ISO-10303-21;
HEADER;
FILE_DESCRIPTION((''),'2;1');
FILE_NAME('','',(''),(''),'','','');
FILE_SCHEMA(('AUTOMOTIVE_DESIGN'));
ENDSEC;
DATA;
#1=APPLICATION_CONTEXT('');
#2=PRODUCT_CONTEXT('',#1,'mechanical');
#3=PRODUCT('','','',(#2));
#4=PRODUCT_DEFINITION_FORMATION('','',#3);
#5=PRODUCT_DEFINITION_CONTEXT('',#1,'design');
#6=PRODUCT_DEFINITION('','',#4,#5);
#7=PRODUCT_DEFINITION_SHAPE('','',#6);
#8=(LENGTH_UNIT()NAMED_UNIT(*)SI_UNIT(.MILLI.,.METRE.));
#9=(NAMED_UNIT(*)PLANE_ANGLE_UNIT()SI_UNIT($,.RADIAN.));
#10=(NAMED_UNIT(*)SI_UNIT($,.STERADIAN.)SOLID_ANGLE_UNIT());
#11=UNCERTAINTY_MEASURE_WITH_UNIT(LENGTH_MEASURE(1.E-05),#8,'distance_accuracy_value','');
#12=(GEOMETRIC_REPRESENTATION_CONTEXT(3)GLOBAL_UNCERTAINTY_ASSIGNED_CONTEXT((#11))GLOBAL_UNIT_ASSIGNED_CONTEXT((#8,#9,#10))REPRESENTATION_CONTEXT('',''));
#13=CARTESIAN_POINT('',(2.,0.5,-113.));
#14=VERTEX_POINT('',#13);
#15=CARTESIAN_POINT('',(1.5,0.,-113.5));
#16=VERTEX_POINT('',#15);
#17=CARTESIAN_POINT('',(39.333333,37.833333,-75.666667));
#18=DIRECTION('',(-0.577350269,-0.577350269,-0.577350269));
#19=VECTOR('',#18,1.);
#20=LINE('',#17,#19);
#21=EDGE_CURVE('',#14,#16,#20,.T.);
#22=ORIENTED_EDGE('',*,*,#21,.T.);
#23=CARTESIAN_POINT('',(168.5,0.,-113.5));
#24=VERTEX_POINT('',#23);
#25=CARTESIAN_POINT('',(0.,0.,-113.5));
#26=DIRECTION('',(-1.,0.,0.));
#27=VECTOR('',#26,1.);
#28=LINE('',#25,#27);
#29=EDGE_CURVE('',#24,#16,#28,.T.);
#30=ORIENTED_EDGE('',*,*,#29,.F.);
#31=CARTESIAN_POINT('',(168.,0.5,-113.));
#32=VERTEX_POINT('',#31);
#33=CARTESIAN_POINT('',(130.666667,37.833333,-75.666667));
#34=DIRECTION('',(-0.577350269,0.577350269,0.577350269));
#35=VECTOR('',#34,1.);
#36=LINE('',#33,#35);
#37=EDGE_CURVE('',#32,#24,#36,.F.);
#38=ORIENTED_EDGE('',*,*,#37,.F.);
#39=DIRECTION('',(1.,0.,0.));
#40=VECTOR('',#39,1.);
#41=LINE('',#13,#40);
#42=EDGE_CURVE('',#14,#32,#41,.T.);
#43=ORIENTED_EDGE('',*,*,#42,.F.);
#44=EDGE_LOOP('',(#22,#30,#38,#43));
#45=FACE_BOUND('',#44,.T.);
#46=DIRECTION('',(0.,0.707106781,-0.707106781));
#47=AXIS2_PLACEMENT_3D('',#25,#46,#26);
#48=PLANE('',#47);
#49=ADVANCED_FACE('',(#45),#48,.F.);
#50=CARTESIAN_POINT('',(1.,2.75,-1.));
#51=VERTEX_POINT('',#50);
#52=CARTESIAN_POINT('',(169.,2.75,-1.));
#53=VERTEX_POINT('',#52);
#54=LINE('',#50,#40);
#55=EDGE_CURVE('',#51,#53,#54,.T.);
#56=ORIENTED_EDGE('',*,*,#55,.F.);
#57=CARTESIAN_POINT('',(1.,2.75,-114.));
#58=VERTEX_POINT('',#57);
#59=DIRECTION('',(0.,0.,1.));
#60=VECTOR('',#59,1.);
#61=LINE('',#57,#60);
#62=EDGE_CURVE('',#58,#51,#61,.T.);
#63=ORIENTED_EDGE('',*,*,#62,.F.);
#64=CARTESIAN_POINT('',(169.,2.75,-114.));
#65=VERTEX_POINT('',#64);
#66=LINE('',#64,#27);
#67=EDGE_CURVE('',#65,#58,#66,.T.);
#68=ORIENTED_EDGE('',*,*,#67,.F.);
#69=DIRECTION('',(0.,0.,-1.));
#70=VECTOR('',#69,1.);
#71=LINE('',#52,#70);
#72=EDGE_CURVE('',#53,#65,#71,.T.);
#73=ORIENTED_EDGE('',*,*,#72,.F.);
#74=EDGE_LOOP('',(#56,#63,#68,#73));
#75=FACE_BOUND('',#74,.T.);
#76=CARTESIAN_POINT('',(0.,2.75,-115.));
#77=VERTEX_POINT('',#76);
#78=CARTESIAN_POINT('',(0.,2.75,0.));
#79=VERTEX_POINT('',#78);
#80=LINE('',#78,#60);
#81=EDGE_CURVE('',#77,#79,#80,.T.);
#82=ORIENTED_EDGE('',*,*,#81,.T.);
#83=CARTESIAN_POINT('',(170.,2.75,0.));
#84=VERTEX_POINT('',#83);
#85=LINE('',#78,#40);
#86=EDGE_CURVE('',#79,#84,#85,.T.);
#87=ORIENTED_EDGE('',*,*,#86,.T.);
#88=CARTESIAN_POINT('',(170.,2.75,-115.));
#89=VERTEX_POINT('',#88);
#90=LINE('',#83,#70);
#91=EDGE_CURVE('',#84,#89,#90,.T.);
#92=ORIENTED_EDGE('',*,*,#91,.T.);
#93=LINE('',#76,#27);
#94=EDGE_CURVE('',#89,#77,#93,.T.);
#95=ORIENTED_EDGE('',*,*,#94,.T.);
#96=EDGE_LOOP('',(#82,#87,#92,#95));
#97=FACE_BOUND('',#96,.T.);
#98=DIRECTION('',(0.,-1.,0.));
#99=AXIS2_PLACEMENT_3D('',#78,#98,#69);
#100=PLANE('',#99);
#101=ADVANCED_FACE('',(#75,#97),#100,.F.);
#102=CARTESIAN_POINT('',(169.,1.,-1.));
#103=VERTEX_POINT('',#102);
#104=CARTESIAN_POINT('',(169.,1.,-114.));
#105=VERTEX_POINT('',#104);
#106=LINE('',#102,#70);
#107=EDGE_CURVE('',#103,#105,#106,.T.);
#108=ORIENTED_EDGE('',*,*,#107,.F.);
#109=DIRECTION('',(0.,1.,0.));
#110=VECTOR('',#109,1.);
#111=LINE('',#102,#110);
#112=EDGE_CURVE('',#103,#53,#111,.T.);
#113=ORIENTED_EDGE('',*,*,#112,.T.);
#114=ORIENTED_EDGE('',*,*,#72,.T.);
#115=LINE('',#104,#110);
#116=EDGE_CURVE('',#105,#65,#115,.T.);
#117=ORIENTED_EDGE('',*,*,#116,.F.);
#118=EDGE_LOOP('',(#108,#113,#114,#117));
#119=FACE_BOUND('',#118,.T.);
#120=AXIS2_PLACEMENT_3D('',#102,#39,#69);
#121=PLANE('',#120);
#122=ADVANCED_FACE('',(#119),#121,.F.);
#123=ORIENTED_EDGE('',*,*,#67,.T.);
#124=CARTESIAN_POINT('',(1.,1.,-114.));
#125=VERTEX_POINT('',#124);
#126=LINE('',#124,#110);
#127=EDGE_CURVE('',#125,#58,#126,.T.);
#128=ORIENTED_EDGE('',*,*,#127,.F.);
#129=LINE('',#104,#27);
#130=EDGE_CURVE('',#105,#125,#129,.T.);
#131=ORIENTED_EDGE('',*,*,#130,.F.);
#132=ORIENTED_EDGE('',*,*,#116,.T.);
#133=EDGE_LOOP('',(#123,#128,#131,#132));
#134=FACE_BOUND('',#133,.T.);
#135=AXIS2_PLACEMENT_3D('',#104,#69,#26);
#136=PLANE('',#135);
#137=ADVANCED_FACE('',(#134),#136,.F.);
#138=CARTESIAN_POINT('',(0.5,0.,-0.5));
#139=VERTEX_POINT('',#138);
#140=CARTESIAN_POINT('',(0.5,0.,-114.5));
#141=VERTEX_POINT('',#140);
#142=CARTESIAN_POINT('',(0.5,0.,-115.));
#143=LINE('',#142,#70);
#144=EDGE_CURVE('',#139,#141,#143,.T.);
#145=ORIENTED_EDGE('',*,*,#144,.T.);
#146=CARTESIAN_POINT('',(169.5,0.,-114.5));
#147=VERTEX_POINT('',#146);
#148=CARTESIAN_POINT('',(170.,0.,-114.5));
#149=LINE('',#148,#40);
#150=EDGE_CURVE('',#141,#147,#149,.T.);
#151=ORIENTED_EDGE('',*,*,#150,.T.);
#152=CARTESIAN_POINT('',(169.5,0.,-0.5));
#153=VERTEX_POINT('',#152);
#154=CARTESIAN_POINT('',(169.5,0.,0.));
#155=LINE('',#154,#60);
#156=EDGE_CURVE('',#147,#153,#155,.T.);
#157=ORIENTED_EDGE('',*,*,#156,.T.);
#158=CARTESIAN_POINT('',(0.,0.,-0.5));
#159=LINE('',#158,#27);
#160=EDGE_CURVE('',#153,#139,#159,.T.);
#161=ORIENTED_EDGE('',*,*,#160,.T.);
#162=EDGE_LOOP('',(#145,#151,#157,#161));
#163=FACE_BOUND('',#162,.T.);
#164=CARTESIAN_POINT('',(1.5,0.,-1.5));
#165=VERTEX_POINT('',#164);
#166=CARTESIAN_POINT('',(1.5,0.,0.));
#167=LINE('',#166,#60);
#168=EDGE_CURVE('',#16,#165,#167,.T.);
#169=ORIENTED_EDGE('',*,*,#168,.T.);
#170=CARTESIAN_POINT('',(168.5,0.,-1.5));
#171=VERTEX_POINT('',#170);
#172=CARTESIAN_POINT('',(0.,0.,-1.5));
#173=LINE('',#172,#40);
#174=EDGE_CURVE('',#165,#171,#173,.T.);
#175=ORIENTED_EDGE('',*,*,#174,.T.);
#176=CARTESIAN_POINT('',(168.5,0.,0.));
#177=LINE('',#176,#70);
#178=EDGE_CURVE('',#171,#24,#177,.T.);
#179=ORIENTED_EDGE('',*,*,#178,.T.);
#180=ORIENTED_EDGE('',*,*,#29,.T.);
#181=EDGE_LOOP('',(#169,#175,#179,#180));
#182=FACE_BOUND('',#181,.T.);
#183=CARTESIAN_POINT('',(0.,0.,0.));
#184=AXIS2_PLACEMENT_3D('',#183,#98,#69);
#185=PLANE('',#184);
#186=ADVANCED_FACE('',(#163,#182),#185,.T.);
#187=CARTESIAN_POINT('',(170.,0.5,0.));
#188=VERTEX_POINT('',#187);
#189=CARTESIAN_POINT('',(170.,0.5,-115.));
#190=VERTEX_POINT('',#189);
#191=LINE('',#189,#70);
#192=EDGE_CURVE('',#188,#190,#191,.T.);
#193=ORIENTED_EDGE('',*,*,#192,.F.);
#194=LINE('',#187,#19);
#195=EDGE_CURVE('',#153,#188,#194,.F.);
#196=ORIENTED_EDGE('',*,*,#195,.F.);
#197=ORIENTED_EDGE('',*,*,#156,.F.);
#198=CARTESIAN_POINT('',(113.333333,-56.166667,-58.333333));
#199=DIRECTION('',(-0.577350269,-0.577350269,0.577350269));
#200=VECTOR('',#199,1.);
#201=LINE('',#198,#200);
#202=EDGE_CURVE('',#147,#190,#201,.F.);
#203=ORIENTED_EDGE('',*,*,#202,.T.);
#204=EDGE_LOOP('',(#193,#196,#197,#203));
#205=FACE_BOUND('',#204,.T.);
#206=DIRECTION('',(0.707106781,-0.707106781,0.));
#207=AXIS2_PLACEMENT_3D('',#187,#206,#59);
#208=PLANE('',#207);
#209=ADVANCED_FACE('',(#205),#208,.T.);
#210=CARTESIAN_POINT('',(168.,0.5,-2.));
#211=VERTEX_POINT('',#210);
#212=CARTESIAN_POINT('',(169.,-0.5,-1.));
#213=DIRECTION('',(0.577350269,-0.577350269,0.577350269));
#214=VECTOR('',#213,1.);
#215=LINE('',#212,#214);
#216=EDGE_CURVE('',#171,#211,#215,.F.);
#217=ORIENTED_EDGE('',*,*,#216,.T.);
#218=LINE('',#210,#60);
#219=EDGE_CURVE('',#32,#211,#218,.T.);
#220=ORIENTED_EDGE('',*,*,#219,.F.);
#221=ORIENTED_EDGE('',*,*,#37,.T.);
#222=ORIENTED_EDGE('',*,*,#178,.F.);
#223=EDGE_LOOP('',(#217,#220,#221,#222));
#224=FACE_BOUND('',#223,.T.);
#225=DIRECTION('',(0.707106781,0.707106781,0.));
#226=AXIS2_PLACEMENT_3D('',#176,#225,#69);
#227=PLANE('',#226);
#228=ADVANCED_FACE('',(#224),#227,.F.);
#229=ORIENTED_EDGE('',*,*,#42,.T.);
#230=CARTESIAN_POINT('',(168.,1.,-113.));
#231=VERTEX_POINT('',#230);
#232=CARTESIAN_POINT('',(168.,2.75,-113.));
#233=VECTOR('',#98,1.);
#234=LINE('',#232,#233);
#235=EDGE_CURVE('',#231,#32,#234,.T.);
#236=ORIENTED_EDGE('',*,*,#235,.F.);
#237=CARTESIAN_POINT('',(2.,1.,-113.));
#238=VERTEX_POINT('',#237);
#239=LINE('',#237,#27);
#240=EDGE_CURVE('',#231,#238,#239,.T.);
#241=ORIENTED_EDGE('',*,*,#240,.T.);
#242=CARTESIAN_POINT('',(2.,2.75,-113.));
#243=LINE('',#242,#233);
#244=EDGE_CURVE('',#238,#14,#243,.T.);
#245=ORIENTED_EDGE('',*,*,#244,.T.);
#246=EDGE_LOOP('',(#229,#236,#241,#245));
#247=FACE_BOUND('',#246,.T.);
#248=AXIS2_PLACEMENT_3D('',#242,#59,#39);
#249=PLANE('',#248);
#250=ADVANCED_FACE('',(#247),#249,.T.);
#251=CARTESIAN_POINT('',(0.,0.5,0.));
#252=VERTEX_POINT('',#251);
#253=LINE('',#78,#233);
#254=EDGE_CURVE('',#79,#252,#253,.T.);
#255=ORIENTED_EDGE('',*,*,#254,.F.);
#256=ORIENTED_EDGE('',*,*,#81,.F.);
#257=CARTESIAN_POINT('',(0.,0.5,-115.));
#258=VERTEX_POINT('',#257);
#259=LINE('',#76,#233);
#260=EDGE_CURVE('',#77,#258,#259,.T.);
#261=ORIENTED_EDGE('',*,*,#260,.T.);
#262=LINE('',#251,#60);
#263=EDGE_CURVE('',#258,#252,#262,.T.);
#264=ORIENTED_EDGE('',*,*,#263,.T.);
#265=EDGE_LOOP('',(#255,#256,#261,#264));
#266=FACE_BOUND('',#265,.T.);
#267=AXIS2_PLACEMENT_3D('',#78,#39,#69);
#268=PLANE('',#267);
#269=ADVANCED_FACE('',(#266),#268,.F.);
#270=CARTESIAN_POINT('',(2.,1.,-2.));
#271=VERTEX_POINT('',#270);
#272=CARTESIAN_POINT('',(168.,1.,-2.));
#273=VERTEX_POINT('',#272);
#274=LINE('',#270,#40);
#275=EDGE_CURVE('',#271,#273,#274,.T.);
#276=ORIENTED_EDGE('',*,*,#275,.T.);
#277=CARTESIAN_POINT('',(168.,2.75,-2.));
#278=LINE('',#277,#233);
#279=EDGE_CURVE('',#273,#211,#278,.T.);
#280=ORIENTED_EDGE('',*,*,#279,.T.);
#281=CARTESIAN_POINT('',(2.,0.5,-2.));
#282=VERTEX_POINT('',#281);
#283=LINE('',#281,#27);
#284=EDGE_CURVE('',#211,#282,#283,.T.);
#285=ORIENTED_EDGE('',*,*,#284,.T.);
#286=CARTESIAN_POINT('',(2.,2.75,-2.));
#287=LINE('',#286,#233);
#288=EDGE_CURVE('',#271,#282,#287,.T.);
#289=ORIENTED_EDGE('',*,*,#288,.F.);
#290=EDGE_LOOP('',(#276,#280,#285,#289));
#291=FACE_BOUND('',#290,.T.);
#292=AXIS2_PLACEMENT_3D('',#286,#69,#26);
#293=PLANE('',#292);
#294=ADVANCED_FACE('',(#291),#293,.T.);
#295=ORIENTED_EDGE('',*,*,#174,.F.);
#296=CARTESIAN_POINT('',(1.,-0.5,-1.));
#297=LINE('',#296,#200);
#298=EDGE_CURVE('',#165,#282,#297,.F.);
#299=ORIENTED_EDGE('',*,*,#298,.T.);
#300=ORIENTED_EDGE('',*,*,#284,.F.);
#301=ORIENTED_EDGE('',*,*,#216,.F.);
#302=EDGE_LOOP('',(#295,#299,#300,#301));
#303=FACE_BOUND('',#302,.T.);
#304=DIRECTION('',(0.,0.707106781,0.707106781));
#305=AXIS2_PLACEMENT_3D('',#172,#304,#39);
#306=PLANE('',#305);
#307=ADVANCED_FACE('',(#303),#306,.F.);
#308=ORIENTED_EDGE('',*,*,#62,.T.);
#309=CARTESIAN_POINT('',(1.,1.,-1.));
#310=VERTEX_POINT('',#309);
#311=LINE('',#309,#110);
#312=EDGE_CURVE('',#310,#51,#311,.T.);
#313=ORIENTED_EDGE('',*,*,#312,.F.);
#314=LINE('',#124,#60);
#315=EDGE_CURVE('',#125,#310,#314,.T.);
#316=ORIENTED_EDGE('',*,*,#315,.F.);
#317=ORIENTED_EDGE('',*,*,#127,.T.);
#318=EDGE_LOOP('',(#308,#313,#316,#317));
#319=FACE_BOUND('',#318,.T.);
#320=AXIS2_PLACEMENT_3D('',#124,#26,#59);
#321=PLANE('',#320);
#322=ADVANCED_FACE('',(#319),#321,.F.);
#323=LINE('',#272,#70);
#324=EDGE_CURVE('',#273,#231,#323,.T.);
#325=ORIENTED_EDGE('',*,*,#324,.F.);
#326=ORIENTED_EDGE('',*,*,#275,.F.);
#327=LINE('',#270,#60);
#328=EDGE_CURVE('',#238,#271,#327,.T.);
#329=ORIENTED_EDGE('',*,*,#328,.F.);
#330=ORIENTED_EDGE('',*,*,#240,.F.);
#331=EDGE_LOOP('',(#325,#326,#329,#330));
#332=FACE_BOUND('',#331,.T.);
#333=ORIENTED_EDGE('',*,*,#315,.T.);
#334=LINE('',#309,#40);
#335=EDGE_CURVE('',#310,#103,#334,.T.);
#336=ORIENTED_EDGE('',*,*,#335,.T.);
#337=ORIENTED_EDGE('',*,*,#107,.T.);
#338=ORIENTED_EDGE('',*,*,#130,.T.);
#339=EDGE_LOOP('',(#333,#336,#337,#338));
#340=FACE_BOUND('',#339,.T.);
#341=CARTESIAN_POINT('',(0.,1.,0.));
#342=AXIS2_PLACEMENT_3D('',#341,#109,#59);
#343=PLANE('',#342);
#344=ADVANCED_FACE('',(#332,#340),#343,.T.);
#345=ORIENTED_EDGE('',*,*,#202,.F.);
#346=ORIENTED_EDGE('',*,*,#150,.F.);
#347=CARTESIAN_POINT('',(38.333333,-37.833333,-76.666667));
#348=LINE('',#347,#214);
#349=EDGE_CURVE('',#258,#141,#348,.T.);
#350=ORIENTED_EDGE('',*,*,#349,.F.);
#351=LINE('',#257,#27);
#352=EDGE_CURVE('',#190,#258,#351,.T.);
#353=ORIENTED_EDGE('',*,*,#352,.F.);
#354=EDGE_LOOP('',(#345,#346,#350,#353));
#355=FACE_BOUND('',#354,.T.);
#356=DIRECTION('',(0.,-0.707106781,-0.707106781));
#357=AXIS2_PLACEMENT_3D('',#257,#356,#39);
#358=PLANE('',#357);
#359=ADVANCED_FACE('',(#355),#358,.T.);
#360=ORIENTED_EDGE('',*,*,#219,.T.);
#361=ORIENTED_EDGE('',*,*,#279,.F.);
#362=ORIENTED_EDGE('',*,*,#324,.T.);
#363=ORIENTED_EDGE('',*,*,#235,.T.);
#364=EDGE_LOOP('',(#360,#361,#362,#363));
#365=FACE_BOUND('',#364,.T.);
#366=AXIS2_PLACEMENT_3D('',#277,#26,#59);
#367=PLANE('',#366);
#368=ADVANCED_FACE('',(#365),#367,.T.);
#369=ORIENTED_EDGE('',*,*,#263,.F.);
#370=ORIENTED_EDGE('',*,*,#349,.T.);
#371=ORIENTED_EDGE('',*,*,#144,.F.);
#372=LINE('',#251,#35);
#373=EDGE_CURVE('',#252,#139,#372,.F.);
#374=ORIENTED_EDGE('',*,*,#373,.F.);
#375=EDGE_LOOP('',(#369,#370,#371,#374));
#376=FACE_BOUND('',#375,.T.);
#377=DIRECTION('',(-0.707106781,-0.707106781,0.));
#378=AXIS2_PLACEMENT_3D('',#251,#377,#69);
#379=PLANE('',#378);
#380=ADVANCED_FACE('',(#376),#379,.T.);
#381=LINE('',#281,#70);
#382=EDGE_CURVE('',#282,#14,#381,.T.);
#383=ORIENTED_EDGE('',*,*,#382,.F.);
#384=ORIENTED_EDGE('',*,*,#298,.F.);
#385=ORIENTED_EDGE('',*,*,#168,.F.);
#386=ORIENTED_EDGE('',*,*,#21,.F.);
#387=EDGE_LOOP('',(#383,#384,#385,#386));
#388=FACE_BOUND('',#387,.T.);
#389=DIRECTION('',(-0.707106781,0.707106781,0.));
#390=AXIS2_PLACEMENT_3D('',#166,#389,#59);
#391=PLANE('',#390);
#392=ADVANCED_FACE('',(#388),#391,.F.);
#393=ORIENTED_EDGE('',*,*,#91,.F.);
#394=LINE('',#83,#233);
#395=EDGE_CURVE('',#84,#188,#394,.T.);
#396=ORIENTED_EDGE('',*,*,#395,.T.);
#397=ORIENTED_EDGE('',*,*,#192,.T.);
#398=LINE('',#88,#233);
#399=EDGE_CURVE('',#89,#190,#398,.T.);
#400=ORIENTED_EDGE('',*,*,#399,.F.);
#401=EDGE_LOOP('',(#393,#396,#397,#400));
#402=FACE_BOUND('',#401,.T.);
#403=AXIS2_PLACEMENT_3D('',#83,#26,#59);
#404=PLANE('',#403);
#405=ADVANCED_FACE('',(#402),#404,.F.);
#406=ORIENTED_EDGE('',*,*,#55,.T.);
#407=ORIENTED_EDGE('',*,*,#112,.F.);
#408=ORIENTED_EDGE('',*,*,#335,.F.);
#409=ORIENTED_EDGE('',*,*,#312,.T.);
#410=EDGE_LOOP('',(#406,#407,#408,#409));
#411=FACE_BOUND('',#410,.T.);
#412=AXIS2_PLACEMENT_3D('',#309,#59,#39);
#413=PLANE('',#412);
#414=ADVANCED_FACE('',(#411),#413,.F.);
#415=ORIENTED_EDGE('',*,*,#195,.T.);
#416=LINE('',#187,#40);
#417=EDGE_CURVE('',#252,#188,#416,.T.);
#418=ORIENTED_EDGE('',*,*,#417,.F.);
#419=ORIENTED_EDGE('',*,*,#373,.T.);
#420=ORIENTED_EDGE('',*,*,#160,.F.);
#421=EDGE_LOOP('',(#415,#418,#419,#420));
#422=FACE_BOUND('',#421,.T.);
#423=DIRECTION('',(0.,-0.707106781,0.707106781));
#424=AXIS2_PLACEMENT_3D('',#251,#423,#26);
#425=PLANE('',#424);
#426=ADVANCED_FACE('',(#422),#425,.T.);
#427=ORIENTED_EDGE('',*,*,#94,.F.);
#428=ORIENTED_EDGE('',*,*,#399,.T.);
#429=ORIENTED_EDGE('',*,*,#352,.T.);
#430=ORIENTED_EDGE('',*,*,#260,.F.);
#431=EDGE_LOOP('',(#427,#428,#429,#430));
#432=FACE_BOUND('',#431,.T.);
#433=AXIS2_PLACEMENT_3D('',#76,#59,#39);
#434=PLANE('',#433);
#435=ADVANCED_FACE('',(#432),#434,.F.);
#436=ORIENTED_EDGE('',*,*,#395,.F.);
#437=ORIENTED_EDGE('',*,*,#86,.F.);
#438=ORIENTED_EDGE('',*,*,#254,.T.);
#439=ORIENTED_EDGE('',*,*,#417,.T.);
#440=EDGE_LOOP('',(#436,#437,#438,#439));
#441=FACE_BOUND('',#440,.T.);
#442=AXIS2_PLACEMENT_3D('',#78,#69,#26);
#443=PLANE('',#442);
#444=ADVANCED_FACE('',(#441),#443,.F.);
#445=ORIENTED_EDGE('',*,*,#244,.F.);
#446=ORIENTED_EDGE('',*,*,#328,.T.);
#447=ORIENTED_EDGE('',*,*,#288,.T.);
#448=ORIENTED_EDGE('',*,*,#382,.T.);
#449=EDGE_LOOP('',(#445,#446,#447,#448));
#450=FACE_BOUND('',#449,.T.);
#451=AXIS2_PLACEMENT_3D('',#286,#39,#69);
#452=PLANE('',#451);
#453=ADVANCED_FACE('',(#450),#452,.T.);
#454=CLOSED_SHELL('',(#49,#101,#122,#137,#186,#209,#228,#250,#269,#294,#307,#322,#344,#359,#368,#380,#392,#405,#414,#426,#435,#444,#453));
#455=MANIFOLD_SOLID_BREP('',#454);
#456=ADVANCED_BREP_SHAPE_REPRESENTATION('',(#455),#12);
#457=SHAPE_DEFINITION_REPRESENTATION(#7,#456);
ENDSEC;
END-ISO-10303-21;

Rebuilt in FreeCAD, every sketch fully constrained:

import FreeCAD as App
import Part
import Sketcher
from FreeCAD import Vector


def edges_at(feature, points):
    """Names of the edges that pass closest to the given points."""
    edges = feature.Shape.Edges
    near = lambda p: min(range(len(edges)), key=lambda i: edges[i].distToShape(Part.Vertex(*p))[0])
    return sorted({f"Edge{near(p) + 1}" for p in points})

doc = App.newDocument("Part")
params = doc.addObject("Spreadsheet::Sheet", "Params")
for row, (alias, value) in enumerate([
    ("sketch1_width", "170 mm"),
    ("sketch1_width2", "166 mm"),
    ("sketch1_height", "115 mm"),
    ("sketch1_height2", "111 mm"),
    ("pad1_length", "2.75 mm"),
    ("sketch2_width", "168 mm"),
    ("sketch2_height", "113 mm"),
    ("pocket1_length", "1.75 mm"),
    ("chamfer_size", "0.5 mm"),
], start=1):
    params.set(f"A{row}", alias)
    params.set(f"B{row}", "=" + value)
    params.setAlias(f"B{row}", alias)

body = doc.addObject("PartDesign::Body", "Body")

sketch1 = doc.addObject("Sketcher::SketchObject", "Sketch")
body.addObject(sketch1)
sketch1.AttachmentSupport = (doc.XZ_Plane, [""])
sketch1.MapMode = "FlatFace"
sketch1.addGeometry(Part.LineSegment(Vector(0, -115, 0), Vector(0, 0, 0)), False)
sketch1.addGeometry(Part.LineSegment(Vector(0, 0, 0), Vector(170, 0, 0)), False)
sketch1.addGeometry(Part.LineSegment(Vector(170, 0, 0), Vector(170, -115, 0)), False)
sketch1.addGeometry(Part.LineSegment(Vector(170, -115, 0), Vector(0, -115, 0)), False)
sketch1.addGeometry(Part.LineSegment(Vector(168, -2, 0), Vector(2, -2, 0)), False)
sketch1.addGeometry(Part.LineSegment(Vector(2, -2, 0), Vector(2, -113, 0)), False)
sketch1.addGeometry(Part.LineSegment(Vector(2, -113, 0), Vector(168, -113, 0)), False)
sketch1.addGeometry(Part.LineSegment(Vector(168, -113, 0), Vector(168, -2, 0)), False)
sketch1.addConstraint(Sketcher.Constraint("Coincident", 0, 2, 1, 1))
sketch1.addConstraint(Sketcher.Constraint("Coincident", 1, 2, 2, 1))
sketch1.addConstraint(Sketcher.Constraint("Coincident", 2, 2, 3, 1))
sketch1.addConstraint(Sketcher.Constraint("Coincident", 3, 2, 0, 1))
sketch1.addConstraint(Sketcher.Constraint("Coincident", 4, 2, 5, 1))
sketch1.addConstraint(Sketcher.Constraint("Coincident", 5, 2, 6, 1))
sketch1.addConstraint(Sketcher.Constraint("Coincident", 6, 2, 7, 1))
sketch1.addConstraint(Sketcher.Constraint("Coincident", 7, 2, 4, 1))
sketch1.addConstraint(Sketcher.Constraint("Vertical", 0))
sketch1.addConstraint(Sketcher.Constraint("Horizontal", 1))
sketch1.addConstraint(Sketcher.Constraint("Vertical", 2))
sketch1.addConstraint(Sketcher.Constraint("Horizontal", 3))
sketch1.addConstraint(Sketcher.Constraint("Horizontal", 4))
sketch1.addConstraint(Sketcher.Constraint("Vertical", 5))
sketch1.addConstraint(Sketcher.Constraint("Horizontal", 6))
sketch1.addConstraint(Sketcher.Constraint("Vertical", 7))
sketch1.addConstraint(Sketcher.Constraint("Coincident", 0, 2, -1, 1))
sketch1.addConstraint(Sketcher.Constraint("DistanceX", 1, 1, 1, 2, 170.0))
sketch1.addConstraint(Sketcher.Constraint("DistanceX", 4, 2, 4, 1, 166.0))
sketch1.addConstraint(Sketcher.Constraint("DistanceY", 0, 1, 0, 2, 115.0))
sketch1.addConstraint(Sketcher.Constraint("DistanceY", 5, 2, 5, 1, 111.0))
sketch1.addConstraint(Sketcher.Constraint("DistanceX", -1, 1, 4, 2, 2.0))
sketch1.addConstraint(Sketcher.Constraint("DistanceY", 4, 2, -1, 1, 2.0))
sketch1.setExpression("Constraints[17]", "Params.sketch1_width")
sketch1.setExpression("Constraints[18]", "Params.sketch1_width2")
sketch1.setExpression("Constraints[19]", "Params.sketch1_height")
sketch1.setExpression("Constraints[20]", "Params.sketch1_height2")
pad1 = doc.addObject("PartDesign::Pad", "Pad")
body.addObject(pad1)
pad1.Profile = sketch1
pad1.setExpression("Length", "Params.pad1_length")
pad1.Reversed = True

sketch2 = doc.addObject("Sketcher::SketchObject", "Sketch001")
body.addObject(sketch2)
sketch2.AttachmentSupport = (doc.XZ_Plane, [""])
sketch2.MapMode = "FlatFace"
sketch2.AttachmentOffset = App.Placement(Vector(0, 0, -2.75), App.Rotation())
sketch2.addGeometry(Part.LineSegment(Vector(1, -114, 0), Vector(1, -1, 0)), False)
sketch2.addGeometry(Part.LineSegment(Vector(1, -1, 0), Vector(169, -1, 0)), False)
sketch2.addGeometry(Part.LineSegment(Vector(169, -1, 0), Vector(169, -114, 0)), False)
sketch2.addGeometry(Part.LineSegment(Vector(169, -114, 0), Vector(1, -114, 0)), False)
sketch2.addConstraint(Sketcher.Constraint("Coincident", 0, 2, 1, 1))
sketch2.addConstraint(Sketcher.Constraint("Coincident", 1, 2, 2, 1))
sketch2.addConstraint(Sketcher.Constraint("Coincident", 2, 2, 3, 1))
sketch2.addConstraint(Sketcher.Constraint("Coincident", 3, 2, 0, 1))
sketch2.addConstraint(Sketcher.Constraint("Vertical", 0))
sketch2.addConstraint(Sketcher.Constraint("Horizontal", 1))
sketch2.addConstraint(Sketcher.Constraint("Vertical", 2))
sketch2.addConstraint(Sketcher.Constraint("Horizontal", 3))
sketch2.addConstraint(Sketcher.Constraint("DistanceX", 1, 1, 1, 2, 168.0))
sketch2.addConstraint(Sketcher.Constraint("DistanceY", 0, 1, 0, 2, 113.0))
sketch2.addConstraint(Sketcher.Constraint("DistanceX", -1, 1, 0, 2, 1.0))
sketch2.addConstraint(Sketcher.Constraint("DistanceY", 0, 2, -1, 1, 1.0))
sketch2.setExpression("Constraints[8]", "Params.sketch2_width")
sketch2.setExpression("Constraints[9]", "Params.sketch2_height")
pocket1 = doc.addObject("PartDesign::Pocket", "Pocket")
body.addObject(pocket1)
pocket1.Profile = sketch2
pocket1.setExpression("Length", "Params.pocket1_length")
pocket1.Reversed = True
doc.recompute()

chamfer = doc.addObject("PartDesign::Chamfer", "Chamfer")
body.addObject(chamfer)
chamfer.Base = (pocket1, edges_at(pocket1, [
    (2, 0, -57.5),
    (85, 0, -2),
    (168, 0, -57.5),
    (85, 0, -113),
    (85, 0, -115),
    (170, 0, -57.5),
    (85, 0, 0),
    (0, 0, -57.5),
]))
chamfer.setExpression("Size", "Params.chamfer_size")

doc.recompute()
